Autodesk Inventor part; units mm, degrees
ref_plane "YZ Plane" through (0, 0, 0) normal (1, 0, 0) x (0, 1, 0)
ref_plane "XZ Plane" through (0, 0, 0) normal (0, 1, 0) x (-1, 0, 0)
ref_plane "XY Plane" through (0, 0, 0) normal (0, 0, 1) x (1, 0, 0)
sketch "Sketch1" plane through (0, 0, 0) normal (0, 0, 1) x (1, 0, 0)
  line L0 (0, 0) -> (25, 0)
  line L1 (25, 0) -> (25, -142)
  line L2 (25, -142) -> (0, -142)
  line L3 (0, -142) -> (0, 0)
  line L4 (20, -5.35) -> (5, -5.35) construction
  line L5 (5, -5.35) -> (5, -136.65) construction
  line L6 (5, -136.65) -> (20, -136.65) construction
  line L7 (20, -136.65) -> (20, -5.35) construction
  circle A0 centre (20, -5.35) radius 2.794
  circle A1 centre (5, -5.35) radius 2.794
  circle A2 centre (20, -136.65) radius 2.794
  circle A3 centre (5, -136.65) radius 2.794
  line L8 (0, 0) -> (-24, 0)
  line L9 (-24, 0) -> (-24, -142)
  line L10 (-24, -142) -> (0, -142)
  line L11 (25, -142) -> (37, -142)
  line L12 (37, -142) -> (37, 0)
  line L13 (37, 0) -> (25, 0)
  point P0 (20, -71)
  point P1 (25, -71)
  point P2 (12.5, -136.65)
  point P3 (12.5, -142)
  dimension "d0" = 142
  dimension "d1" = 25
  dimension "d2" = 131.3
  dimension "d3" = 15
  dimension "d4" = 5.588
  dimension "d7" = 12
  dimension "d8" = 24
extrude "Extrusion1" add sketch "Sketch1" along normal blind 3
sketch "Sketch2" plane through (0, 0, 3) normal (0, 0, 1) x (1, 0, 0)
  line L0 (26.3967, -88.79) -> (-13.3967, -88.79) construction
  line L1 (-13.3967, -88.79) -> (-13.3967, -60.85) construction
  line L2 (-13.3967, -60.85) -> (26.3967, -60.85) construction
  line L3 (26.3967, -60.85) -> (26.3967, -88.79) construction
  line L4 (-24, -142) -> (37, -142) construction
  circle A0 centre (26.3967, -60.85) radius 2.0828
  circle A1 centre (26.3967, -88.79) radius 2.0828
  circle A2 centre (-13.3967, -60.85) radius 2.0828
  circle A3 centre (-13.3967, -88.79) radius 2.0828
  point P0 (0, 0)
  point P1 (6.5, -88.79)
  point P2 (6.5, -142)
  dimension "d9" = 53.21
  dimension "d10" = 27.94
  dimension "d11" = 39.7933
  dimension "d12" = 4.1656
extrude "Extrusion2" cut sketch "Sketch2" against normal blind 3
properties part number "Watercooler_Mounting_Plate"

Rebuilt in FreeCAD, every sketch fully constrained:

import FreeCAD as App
import Part
import Sketcher
Q = App.Units.Quantity


def add_polygon(sketch, points):
    """Adds a closed chain of lines whose ends are joined by coincident constraints."""
    first, n = sketch.GeometryCount, len(points)
    for a, b in zip(points, points[1:] + points[:1]):
        sketch.addGeometry(Part.LineSegment(App.Vector(*a, 0), App.Vector(*b, 0)), False)
    for i in range(n):
        sketch.addConstraint(Sketcher.Constraint("Coincident", first + i, 2, first + (i + 1) % n, 1))

doc = App.newDocument("Part")
body = doc.addObject("PartDesign::Body", "Body")

sketch1 = doc.addObject("Sketcher::SketchObject", "Sketch")
body.addObject(sketch1)
sketch1.AttachmentSupport = (doc.XY_Plane, [""])
sketch1.MapMode = "FlatFace"
add_polygon(sketch1, [(-24, 0), (-24, -142), (37, -142), (37, 0)])
sketch1.addGeometry(Part.Circle(App.Vector(5, -136.65, 0), App.Vector(0, 0, 1), 2.794), False)
sketch1.addGeometry(Part.Circle(App.Vector(20, -136.65, 0), App.Vector(0, 0, 1), 2.794), False)
sketch1.addGeometry(Part.Circle(App.Vector(5, -5.35, 0), App.Vector(0, 0, 1), 2.794), False)
sketch1.addGeometry(Part.Circle(App.Vector(20, -5.35, 0), App.Vector(0, 0, 1), 2.794), False)
sketch1.addConstraint([
    Sketcher.Constraint("Vertical", 0),
    Sketcher.Constraint("Horizontal", 1),
    Sketcher.Constraint("Vertical", 2),
    Sketcher.Constraint("Horizontal", 3),
    Sketcher.Constraint("Equal", 4, 5),
    Sketcher.Constraint("Equal", 5, 6),
    Sketcher.Constraint("Equal", 6, 7),
    Sketcher.Constraint("PointOnObject", 2, 2, -1),
    Sketcher.Constraint("Horizontal", 4, 3, 5, 3),
    Sketcher.Constraint("Horizontal", 6, 3, 7, 3),
    Sketcher.Constraint("Vertical", 4, 3, 6, 3),
    Sketcher.Constraint("Vertical", 5, 3, 7, 3),
    Sketcher.Constraint("DistanceY", 0, 2, 0, 1, Q("142 mm")),
    Sketcher.Constraint("Diameter", 4, Q("5.588 mm")),
    Sketcher.Constraint("DistanceX", 0, 2, -1, 1, Q("24 mm")),
    Sketcher.Constraint("DistanceX", 4, 3, 5, 3, Q("15 mm")),
    Sketcher.Constraint("DistanceY", 4, 3, 6, 3, Q("131.3 mm")),
    Sketcher.Constraint("DistanceX", 1, 1, 1, 2, Q("61 mm")),
    Sketcher.Constraint("DistanceX", -1, 1, 4, 3, Q("5 mm")),
    Sketcher.Constraint("DistanceY", 4, 3, -1, 1, Q("136.65 mm")),
])
pad1 = doc.addObject("PartDesign::Pad", "Pad")
body.addObject(pad1)
pad1.Profile = sketch1
pad1.Length = 3

sketch2 = doc.addObject("Sketcher::SketchObject", "Sketch001")
body.addObject(sketch2)
sketch2.AttachmentSupport = (doc.XY_Plane, [""])
sketch2.MapMode = "FlatFace"
sketch2.AttachmentOffset = App.Placement(App.Vector(0, 0, 3), App.Rotation())
sketch2.addGeometry([
    Part.Circle(App.Vector(26.3967, -60.85, 0), App.Vector(0, 0, 1), 2.0828),
    Part.Circle(App.Vector(26.3967, -88.79, 0), App.Vector(0, 0, 1), 2.0828),
    Part.Circle(App.Vector(-13.3967, -60.85, 0), App.Vector(0, 0, 1), 2.0828),
    Part.Circle(App.Vector(-13.3967, -88.79, 0), App.Vector(0, 0, 1), 2.0828),
], False)
sketch2.addConstraint([
    Sketcher.Constraint("Equal", 0, 1),
    Sketcher.Constraint("Equal", 1, 2),
    Sketcher.Constraint("Equal", 2, 3),
    Sketcher.Constraint("Horizontal", 0, 3, 2, 3),
    Sketcher.Constraint("Horizontal", 1, 3, 3, 3),
    Sketcher.Constraint("Vertical", 0, 3, 1, 3),
    Sketcher.Constraint("Vertical", 2, 3, 3, 3),
    Sketcher.Constraint("Diameter", 0, Q("4.1656 mm")),
    Sketcher.Constraint("DistanceY", 1, 3, 0, 3, Q("27.94 mm")),
    Sketcher.Constraint("DistanceX", 2, 3, 0, 3, Q("39.7934 mm")),
    Sketcher.Constraint("DistanceY", 0, 3, -1, 1, Q("60.85 mm")),
    Sketcher.Constraint("DistanceX", -1, 1, 0, 3, Q("26.3967 mm")),
])
pocket1 = doc.addObject("PartDesign::Pocket", "Pocket")
body.addObject(pocket1)
pocket1.Profile = sketch2
pocket1.Length = 3

doc.recompute()
